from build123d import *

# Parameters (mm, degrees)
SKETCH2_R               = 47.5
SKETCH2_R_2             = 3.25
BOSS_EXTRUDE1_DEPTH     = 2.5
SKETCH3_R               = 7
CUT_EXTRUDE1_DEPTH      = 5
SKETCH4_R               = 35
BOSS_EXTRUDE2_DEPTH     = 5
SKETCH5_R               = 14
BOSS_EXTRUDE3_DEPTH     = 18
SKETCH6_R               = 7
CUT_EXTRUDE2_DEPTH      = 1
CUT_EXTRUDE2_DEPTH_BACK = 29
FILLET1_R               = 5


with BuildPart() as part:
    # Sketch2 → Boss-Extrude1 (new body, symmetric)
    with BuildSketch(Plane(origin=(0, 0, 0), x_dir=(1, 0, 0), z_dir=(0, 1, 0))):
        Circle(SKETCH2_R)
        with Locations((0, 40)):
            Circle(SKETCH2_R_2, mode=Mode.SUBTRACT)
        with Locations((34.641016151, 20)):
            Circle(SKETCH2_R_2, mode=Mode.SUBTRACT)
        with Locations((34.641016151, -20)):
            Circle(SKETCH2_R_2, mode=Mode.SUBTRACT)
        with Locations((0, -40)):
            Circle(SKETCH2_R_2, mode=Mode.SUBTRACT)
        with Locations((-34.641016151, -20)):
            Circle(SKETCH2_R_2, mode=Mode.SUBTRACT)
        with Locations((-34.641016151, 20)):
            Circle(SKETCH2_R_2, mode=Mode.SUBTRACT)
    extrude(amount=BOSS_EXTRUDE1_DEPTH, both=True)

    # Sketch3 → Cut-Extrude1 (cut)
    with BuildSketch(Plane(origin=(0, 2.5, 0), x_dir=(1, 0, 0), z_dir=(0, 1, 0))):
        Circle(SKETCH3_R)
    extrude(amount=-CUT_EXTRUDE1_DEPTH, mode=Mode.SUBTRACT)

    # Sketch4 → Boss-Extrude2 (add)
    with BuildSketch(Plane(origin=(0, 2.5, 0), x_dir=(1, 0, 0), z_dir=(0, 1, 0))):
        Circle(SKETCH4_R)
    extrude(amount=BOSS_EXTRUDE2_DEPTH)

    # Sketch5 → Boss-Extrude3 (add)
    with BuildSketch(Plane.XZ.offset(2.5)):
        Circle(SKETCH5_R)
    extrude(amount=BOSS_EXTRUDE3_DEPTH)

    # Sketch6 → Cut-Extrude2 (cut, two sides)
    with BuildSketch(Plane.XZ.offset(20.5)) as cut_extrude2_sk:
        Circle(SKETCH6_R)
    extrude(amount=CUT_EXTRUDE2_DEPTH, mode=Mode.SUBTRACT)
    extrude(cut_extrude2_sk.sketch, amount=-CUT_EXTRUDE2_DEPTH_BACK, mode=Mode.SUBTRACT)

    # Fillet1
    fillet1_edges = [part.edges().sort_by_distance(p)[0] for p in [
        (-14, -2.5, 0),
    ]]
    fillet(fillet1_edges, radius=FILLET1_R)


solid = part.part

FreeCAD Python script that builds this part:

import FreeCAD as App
import Part
import Sketcher

V = App.Vector
Q = App.Units.Quantity


def edges_at(feature, points):
    """Names of the edges that pass closest to the given points."""
    edges = feature.Shape.Edges
    near = lambda p: min(range(len(edges)), key=lambda i: edges[i].distToShape(Part.Vertex(*p))[0])
    return sorted({f"Edge{near(p) + 1}" for p in points})

doc = App.newDocument("Part")
body = doc.addObject("PartDesign::Body", "Body")

# Sketch on XZ plane
sketch1 = doc.addObject("Sketcher::SketchObject", "Sketch")
body.addObject(sketch1)
sketch1.AttachmentSupport = (doc.XZ_Plane, [""])
sketch1.MapMode = "FlatFace"
sketch1.addGeometry([
    Part.Circle(V(0, 0, 0), V(0, 0, 1), 47.5),  # 0
    Part.Circle(V(-34.641016, 20, 0), V(0, 0, 1), 3.25),  # 1
    Part.Circle(V(0, 40, 0), V(0, 0, 1), 3.25),  # 2
    Part.Circle(V(34.641016, 20, 0), V(0, 0, 1), 3.25),  # 3
    Part.Circle(V(-34.641016, -20, 0), V(0, 0, 1), 3.25),  # 4
    Part.Circle(V(34.641016, -20, 0), V(0, 0, 1), 3.25),  # 5
    Part.Circle(V(0, -40, 0), V(0, 0, 1), 3.25),  # 6
], False)
sketch1.addConstraint([
    Sketcher.Constraint("Coincident", 0, 3, -1, 1),
    Sketcher.Constraint("Equal", 1, 2),
    Sketcher.Constraint("Equal", 2, 3),
    Sketcher.Constraint("Equal", 3, 4),
    Sketcher.Constraint("Equal", 4, 5),
    Sketcher.Constraint("Equal", 5, 6),
    Sketcher.Constraint("Symmetric", 3, 3, 4, 3, -1, 1),
    Sketcher.Constraint("Symmetric", 1, 3, 5, 3, -1, 1),
    Sketcher.Constraint("Symmetric", 2, 3, 6, 3, -1, 1),
    Sketcher.Constraint("Symmetric", 1, 3, 3, 3, -2),
    Sketcher.Constraint("PointOnObject", 2, 3, -2),
    Sketcher.Constraint("Diameter", 0, Q("95 mm")),
    Sketcher.Constraint("Diameter", 1, Q("6.5 mm")),
    Sketcher.Constraint("DistanceY", -1, 1, 1, 3, Q("20 mm")),
    Sketcher.Constraint("DistanceY", -1, 1, 2, 3, Q("40 mm")),
    Sketcher.Constraint("DistanceX", 1, 3, -1, 1, Q("34.641016 mm")),
])
pad1 = doc.addObject("PartDesign::Pad", "Pad")
body.addObject(pad1)
pad1.Profile = sketch1
pad1.Length = 5
pad1.Midplane = True

# Sketch on XZ plane
sketch2 = doc.addObject("Sketcher::SketchObject", "Sketch001")
body.addObject(sketch2)
sketch2.AttachmentSupport = (doc.XZ_Plane, [""])
sketch2.MapMode = "FlatFace"
sketch2.AttachmentOffset = App.Placement(V(0, 0, -2.5), App.Rotation())
sketch2.addGeometry(Part.Circle(V(0, 0, 0), V(0, 0, 1), 7), False)
sketch2.addConstraint([
    Sketcher.Constraint("Coincident", 0, 3, -1, 1),
    Sketcher.Constraint("Diameter", 0, Q("14 mm")),
])
pocket1 = doc.addObject("PartDesign::Pocket", "Pocket")
body.addObject(pocket1)
pocket1.Profile = sketch2
pocket1.Length = 5
pocket1.Reversed = True

# Sketch on XZ plane
sketch3 = doc.addObject("Sketcher::SketchObject", "Sketch002")
body.addObject(sketch3)
sketch3.AttachmentSupport = (doc.XZ_Plane, [""])
sketch3.MapMode = "FlatFace"
sketch3.AttachmentOffset = App.Placement(V(0, 0, -2.5), App.Rotation())
sketch3.addGeometry(Part.Circle(V(0, 0, 0), V(0, 0, 1), 35), False)
sketch3.addConstraint([
    Sketcher.Constraint("Coincident", 0, 3, -1, 1),
    Sketcher.Constraint("Diameter", 0, Q("70 mm")),
])
pad2 = doc.addObject("PartDesign::Pad", "Pad001")
body.addObject(pad2)
pad2.Profile = sketch3
pad2.Length = 5
pad2.Reversed = True

# Sketch on XZ plane
sketch4 = doc.addObject("Sketcher::SketchObject", "Sketch003")
body.addObject(sketch4)
sketch4.AttachmentSupport = (doc.XZ_Plane, [""])
sketch4.MapMode = "FlatFace"
sketch4.AttachmentOffset = App.Placement(V(0, 0, 2.5), App.Rotation())
sketch4.addGeometry(Part.Circle(V(0, 0, 0), V(0, 0, 1), 14), False)
sketch4.addConstraint([
    Sketcher.Constraint("Coincident", 0, 3, -1, 1),
    Sketcher.Constraint("Diameter", 0, Q("28 mm")),
])
pad3 = doc.addObject("PartDesign::Pad", "Pad002")
body.addObject(pad3)
pad3.Profile = sketch4
pad3.Length = 18

# Sketch on XZ plane
sketch5 = doc.addObject("Sketcher::SketchObject", "Sketch004")
body.addObject(sketch5)
sketch5.AttachmentSupport = (doc.XZ_Plane, [""])
sketch5.MapMode = "FlatFace"
sketch5.AttachmentOffset = App.Placement(V(0, 0, 20.5), App.Rotation())
sketch5.addGeometry(Part.Circle(V(0, 0, 0), V(0, 0, 1), 7), False)
sketch5.addConstraint([
    Sketcher.Constraint("Coincident", 0, 3, -1, 1),
    Sketcher.Constraint("Diameter", 0, Q("14 mm")),
])
pocket2 = doc.addObject("PartDesign::Pocket", "Pocket001")
body.addObject(pocket2)
pocket2.Profile = sketch5
pocket2.Type = "ThroughAll"
pocket2.Midplane = True
doc.recompute()

fillet = doc.addObject("PartDesign::Fillet", "Fillet")
body.addObject(fillet)
fillet.Base = (pocket2, edges_at(pocket2, [(-14, -2.5, 0)]))
fillet.Radius = 5

doc.recompute()
